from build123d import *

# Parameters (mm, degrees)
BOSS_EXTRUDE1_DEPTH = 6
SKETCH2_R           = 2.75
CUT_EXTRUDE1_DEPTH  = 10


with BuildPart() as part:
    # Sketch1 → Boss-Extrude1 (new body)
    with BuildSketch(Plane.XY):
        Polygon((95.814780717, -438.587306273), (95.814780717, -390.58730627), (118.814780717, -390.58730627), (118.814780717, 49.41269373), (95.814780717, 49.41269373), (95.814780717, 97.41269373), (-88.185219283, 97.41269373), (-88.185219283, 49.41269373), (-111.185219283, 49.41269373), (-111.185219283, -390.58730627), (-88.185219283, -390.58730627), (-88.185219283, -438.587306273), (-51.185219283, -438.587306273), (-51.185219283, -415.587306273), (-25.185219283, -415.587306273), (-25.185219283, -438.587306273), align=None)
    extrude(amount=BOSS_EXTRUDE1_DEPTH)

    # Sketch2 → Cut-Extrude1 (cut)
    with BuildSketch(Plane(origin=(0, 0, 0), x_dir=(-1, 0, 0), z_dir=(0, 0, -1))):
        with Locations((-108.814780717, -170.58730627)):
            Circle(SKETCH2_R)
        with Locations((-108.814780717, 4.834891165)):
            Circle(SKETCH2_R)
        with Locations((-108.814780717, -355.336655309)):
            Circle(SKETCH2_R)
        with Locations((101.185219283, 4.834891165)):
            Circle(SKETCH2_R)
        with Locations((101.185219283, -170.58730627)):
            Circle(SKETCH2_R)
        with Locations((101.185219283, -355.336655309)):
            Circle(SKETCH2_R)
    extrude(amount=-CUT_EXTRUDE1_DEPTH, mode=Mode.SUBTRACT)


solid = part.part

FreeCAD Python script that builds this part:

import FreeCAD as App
import Part
import Sketcher

V = App.Vector
Q = App.Units.Quantity


def add_polygon(sketch, points):
    """Adds a closed chain of lines whose ends are joined by coincident constraints."""
    first, n = sketch.GeometryCount, len(points)
    for a, b in zip(points, points[1:] + points[:1]):
        sketch.addGeometry(Part.LineSegment(App.Vector(*a, 0), App.Vector(*b, 0)), False)
    for i in range(n):
        sketch.addConstraint(Sketcher.Constraint("Coincident", first + i, 2, first + (i + 1) % n, 1))

doc = App.newDocument("Part")
body = doc.addObject("PartDesign::Body", "Body")

# Sketch on XY plane
sketch1 = body.newObject("Sketcher::SketchObject", "Sketch")
sketch1.AttachmentSupport = (doc.getObject("XY_Plane"), [""])
sketch1.MapMode = "FlatFace"
add_polygon(sketch1, [(95.814781, -438.587306), (95.814781, -390.587306), (118.814781, -390.587306), (118.814781, 49.412694), (95.814781, 49.412694), (95.814781, 97.412694), (-88.185219, 97.412694), (-88.185219, 49.412694), (-111.185219, 49.412694), (-111.185219, -390.587306), (-88.185219, -390.587306), (-88.185219, -438.587306), (-51.185219, -438.587306), (-51.185219, -415.587306), (-25.185219, -415.587306), (-25.185219, -438.587306)])  # lines 0-15
sketch1.addConstraint([
    Sketcher.Constraint("Vertical", 0),
    Sketcher.Constraint("Horizontal", 1),
    Sketcher.Constraint("Vertical", 2),
    Sketcher.Constraint("Horizontal", 3),
    Sketcher.Constraint("Vertical", 4),
    Sketcher.Constraint("Horizontal", 5),
    Sketcher.Constraint("Vertical", 6),
    Sketcher.Constraint("Horizontal", 7),
    Sketcher.Constraint("Vertical", 8),
    Sketcher.Constraint("Horizontal", 9),
    Sketcher.Constraint("Vertical", 10),
    Sketcher.Constraint("Horizontal", 11),
    Sketcher.Constraint("Vertical", 12),
    Sketcher.Constraint("Horizontal", 13),
    Sketcher.Constraint("Vertical", 14),
    Sketcher.Constraint("Horizontal", 15),
    Sketcher.Constraint("Horizontal", 3, 2, 6, 2),
    Sketcher.Constraint("Horizontal", 1, 2, 8, 2),
    Sketcher.Constraint("Horizontal", 11, 2, 14, 2),
    Sketcher.Constraint("Vertical", 0, 2, 3, 2),
    Sketcher.Constraint("Vertical", 6, 2, 9, 2),
    Sketcher.Constraint("Equal", 3, 7),
    Sketcher.Constraint("Equal", 0, 4),
    Sketcher.Constraint("Equal", 9, 12),
    Sketcher.Constraint("DistanceX", 1, 1, 1, 2, Q("23 mm")),
    Sketcher.Constraint("DistanceX", 5, 2, 5, 1, Q("184 mm")),
    Sketcher.Constraint("DistanceX", 11, 1, 11, 2, Q("37 mm")),
    Sketcher.Constraint("DistanceX", 13, 1, 13, 2, Q("26 mm")),
    Sketcher.Constraint("DistanceY", 0, 1, 0, 2, Q("48 mm")),
    Sketcher.Constraint("DistanceY", 2, 1, 2, 2, Q("440 mm")),
    Sketcher.Constraint("DistanceX", -1, 1, 0, 2, Q("95.814781 mm")),
    Sketcher.Constraint("DistanceY", 0, 2, -1, 1, Q("390.587306 mm")),
])
pad1 = body.newObject("PartDesign::Pad", "Pad")
pad1.Profile = sketch1
pad1.Length = 6

# Sketch on XY plane
sketch2 = body.newObject("Sketcher::SketchObject", "Sketch001")
sketch2.AttachmentSupport = (doc.getObject("XY_Plane"), [""])
sketch2.MapMode = "FlatFace"
sketch2.addGeometry([
    Part.Circle(V(108.814781, -170.587306, 0), V(0, 0, 1), 2.75),  # 0
    Part.Circle(V(108.814781, 4.834891, 0), V(0, 0, 1), 2.75),  # 1
    Part.Circle(V(108.814781, -355.336655, 0), V(0, 0, 1), 2.75),  # 2
    Part.Circle(V(-101.185219, 4.834891, 0), V(0, 0, 1), 2.75),  # 3
    Part.Circle(V(-101.185219, -170.587306, 0), V(0, 0, 1), 2.75),  # 4
    Part.Circle(V(-101.185219, -355.336655, 0), V(0, 0, 1), 2.75),  # 5
], False)
sketch2.addConstraint([
    Sketcher.Constraint("Equal", 0, 1),
    Sketcher.Constraint("Equal", 1, 2),
    Sketcher.Constraint("Equal", 2, 3),
    Sketcher.Constraint("Equal", 3, 4),
    Sketcher.Constraint("Equal", 4, 5),
    Sketcher.Constraint("Horizontal", 1, 3, 3, 3),
    Sketcher.Constraint("Horizontal", 0, 3, 4, 3),
    Sketcher.Constraint("Horizontal", 2, 3, 5, 3),
    Sketcher.Constraint("Vertical", 0, 3, 1, 3),
    Sketcher.Constraint("Vertical", 1, 3, 2, 3),
    Sketcher.Constraint("Vertical", 3, 3, 4, 3),
    Sketcher.Constraint("Vertical", 4, 3, 5, 3),
    Sketcher.Constraint("Diameter", 0, Q("5.5 mm")),
    Sketcher.Constraint("DistanceX", 3, 3, 1, 3, Q("210 mm")),
    Sketcher.Constraint("DistanceX", -1, 1, 0, 3, Q("108.814781 mm")),
    Sketcher.Constraint("DistanceY", -1, 1, 1, 3, Q("4.834891 mm")),
    Sketcher.Constraint("DistanceY", 2, 3, 0, 3, Q("184.749349 mm")),
    Sketcher.Constraint("DistanceY", 0, 3, -1, 1, Q("170.587306 mm")),
])
pocket1 = body.newObject("PartDesign::Pocket", "Pocket")
pocket1.Profile = sketch2
pocket1.Length = 10
pocket1.Reversed = True

doc.recompute()
